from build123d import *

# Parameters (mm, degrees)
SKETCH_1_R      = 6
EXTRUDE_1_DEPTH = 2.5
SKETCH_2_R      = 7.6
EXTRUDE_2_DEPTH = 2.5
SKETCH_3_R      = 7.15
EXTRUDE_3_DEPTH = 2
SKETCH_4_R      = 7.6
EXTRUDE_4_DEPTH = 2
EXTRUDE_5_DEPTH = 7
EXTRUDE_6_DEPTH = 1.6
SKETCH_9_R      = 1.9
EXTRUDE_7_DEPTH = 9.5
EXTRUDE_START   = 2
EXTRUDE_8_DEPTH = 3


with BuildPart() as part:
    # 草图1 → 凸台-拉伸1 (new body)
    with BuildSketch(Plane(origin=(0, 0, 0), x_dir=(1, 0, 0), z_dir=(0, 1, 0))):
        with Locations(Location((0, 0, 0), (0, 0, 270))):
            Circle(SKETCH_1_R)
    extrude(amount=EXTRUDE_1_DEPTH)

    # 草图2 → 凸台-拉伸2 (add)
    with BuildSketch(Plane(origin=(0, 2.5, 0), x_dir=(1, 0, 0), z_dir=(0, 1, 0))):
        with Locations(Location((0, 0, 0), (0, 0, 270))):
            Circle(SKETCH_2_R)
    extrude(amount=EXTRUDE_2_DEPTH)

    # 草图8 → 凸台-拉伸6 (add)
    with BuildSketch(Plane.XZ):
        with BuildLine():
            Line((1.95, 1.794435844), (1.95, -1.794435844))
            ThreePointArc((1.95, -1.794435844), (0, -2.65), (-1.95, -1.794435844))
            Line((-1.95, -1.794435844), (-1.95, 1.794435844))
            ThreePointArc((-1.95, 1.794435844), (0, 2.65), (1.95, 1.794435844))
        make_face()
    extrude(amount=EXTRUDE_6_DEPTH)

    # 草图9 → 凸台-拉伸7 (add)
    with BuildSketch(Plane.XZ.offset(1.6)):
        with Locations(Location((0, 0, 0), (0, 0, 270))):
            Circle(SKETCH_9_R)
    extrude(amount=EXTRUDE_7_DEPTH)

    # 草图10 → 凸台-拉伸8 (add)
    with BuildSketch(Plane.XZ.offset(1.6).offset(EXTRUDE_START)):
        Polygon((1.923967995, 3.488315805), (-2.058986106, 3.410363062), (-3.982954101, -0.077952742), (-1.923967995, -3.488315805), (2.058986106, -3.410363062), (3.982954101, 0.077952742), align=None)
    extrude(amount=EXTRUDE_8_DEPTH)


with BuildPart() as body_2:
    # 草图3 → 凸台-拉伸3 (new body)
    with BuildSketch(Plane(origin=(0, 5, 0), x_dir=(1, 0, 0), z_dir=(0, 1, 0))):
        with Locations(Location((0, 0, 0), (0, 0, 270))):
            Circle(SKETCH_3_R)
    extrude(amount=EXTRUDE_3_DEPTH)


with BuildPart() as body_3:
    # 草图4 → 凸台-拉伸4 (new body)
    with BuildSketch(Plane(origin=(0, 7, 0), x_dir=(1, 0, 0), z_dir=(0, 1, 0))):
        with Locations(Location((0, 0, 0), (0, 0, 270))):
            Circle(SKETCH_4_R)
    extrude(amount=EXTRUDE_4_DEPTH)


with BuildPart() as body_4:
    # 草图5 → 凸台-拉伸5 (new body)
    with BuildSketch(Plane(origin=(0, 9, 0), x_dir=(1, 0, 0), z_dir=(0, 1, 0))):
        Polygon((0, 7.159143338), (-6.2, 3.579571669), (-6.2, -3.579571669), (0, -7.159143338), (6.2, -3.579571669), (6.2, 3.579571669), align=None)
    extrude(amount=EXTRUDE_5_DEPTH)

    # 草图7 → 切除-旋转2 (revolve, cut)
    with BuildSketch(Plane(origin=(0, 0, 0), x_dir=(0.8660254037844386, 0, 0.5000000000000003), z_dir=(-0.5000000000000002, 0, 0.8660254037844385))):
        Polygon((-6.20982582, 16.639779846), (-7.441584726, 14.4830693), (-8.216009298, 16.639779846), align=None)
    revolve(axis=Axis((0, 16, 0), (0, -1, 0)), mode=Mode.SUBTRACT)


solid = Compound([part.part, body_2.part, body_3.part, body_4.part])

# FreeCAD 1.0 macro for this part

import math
import FreeCAD as App
import Part
import Sketcher

V = App.Vector
Q = App.Units.Quantity

doc = App.newDocument("Part")
body = doc.addObject("PartDesign::Body", "Body")

# Sketch on XZ plane
sketch1 = body.newObject("Sketcher::SketchObject", "Sketch")
sketch1.AttachmentSupport = (doc.getObject("XZ_Plane"), [""])
sketch1.MapMode = "FlatFace"
sketch1.addGeometry(Part.Circle(V(0, 0, 0), V(0, 0, 1), 6), False)
sketch1.addConstraint([
    Sketcher.Constraint("Coincident", 0, 3, -1, 1),
    Sketcher.Constraint("Diameter", 0, Q("12 mm")),
])
pad1 = body.newObject("PartDesign::Pad", "Pad")
pad1.Profile = sketch1
pad1.Length = 2.5
pad1.Reversed = True

# Sketch on XZ plane
sketch2 = body.newObject("Sketcher::SketchObject", "Sketch001")
sketch2.AttachmentSupport = (doc.getObject("XZ_Plane"), [""])
sketch2.MapMode = "FlatFace"
sketch2.AttachmentOffset = App.Placement(V(0, 0, -2.5), App.Rotation())
sketch2.addGeometry(Part.Circle(V(0, 0, 0), V(0, 0, 1), 7.6), False)
sketch2.addConstraint([
    Sketcher.Constraint("Coincident", 0, 3, -1, 1),
    Sketcher.Constraint("Diameter", 0, Q("15.2 mm")),
])
pad2 = body.newObject("PartDesign::Pad", "Pad001")
pad2.Profile = sketch2
pad2.Length = 2.5
pad2.Reversed = True

# Sketch on XZ plane
sketch3 = body.newObject("Sketcher::SketchObject", "Sketch002")
sketch3.AttachmentSupport = (doc.getObject("XZ_Plane"), [""])
sketch3.MapMode = "FlatFace"
sketch3.addGeometry([
    Part.LineSegment(V(1.95, -1.794436, 0), V(1.95, 1.794436, 0)),
    Part.ArcOfCircle(Part.Circle(V(0, 0, 0), V(0, 0, 1), 2.65), math.radians(42.620991), math.radians(137.379009)),
    Part.LineSegment(V(-1.95, 1.794436, 0), V(-1.95, -1.794436, 0)),
    Part.ArcOfCircle(Part.Circle(V(0, 0, 0), V(0, 0, 1), 2.65), math.radians(-137.379009), math.radians(-42.620991)),
], False)
sketch3.addConstraint([
    Sketcher.Constraint("Coincident", 0, 2, 1, 1),
    Sketcher.Constraint("Coincident", 1, 2, 2, 1),
    Sketcher.Constraint("Coincident", 2, 2, 3, 1),
    Sketcher.Constraint("Coincident", 3, 2, 0, 1),
    Sketcher.Constraint("Vertical", 0),
    Sketcher.Constraint("Vertical", 2),
    Sketcher.Constraint("Coincident", 1, 3, -1, 1),
    Sketcher.Constraint("Coincident", 3, 3, -1, 1),
    Sketcher.Constraint("Equal", 1, 3),
    Sketcher.Constraint("Horizontal", 0, 2, 1, 2),
    Sketcher.Constraint("Radius", 1, Q("2.65 mm")),
    Sketcher.Constraint("DistanceX", 1, 2, 0, 2, Q("3.9 mm")),
])
pad3 = body.newObject("PartDesign::Pad", "Pad002")
pad3.Profile = sketch3
pad3.Length = 1.6

# Sketch on XZ plane
sketch4 = body.newObject("Sketcher::SketchObject", "Sketch003")
sketch4.AttachmentSupport = (doc.getObject("XZ_Plane"), [""])
sketch4.MapMode = "FlatFace"
sketch4.AttachmentOffset = App.Placement(V(0, 0, 1.6), App.Rotation())
sketch4.addGeometry(Part.Circle(V(0, 0, 0), V(0, 0, 1), 1.9), False)
sketch4.addConstraint([
    Sketcher.Constraint("Coincident", 0, 3, -1, 1),
    Sketcher.Constraint("Diameter", 0, Q("3.8 mm")),
])
pad4 = body.newObject("PartDesign::Pad", "Pad003")
pad4.Profile = sketch4
pad4.Length = 9.5

# Sketch on XZ plane
sketch5 = body.newObject("Sketcher::SketchObject", "Sketch004")
sketch5.AttachmentSupport = (doc.getObject("XZ_Plane"), [""])
sketch5.MapMode = "FlatFace"
sketch5.AttachmentOffset = App.Placement(V(0, 0, 3.6), App.Rotation())
sketch5.addGeometry([
    Part.LineSegment(V(1.923968, 3.488316, 0), V(-2.058986, 3.410363, 0)),  # 0
    Part.LineSegment(V(-2.058986, 3.410363, 0), V(-3.982954, -0.077953, 0)),  # 1
    Part.LineSegment(V(-3.982954, -0.077953, 0), V(-1.923968, -3.488316, 0)),  # 2
    Part.LineSegment(V(-1.923968, -3.488316, 0), V(2.058986, -3.410363, 0)),  # 3
    Part.LineSegment(V(2.058986, -3.410363, 0), V(3.982954, 0.077953, 0)),  # 4
    Part.LineSegment(V(3.982954, 0.077953, 0), V(1.923968, 3.488316, 0)),  # 5
], False)
sketch5.addConstraint([
    Sketcher.Constraint("Coincident", 0, 2, 1, 1),
    Sketcher.Constraint("Coincident", 1, 2, 2, 1),
    Sketcher.Constraint("Coincident", 2, 2, 3, 1),
    Sketcher.Constraint("Coincident", 3, 2, 4, 1),
    Sketcher.Constraint("Coincident", 4, 2, 5, 1),
    Sketcher.Constraint("Coincident", 5, 2, 0, 1),
    Sketcher.Constraint("Symmetric", 0, 2, 3, 2, -1, 1),
    Sketcher.Constraint("Symmetric", 1, 2, 4, 2, -1, 1),
    Sketcher.Constraint("Symmetric", 2, 2, 5, 2, -1, 1),
    Sketcher.Constraint("Equal", 0, 1),
    Sketcher.Constraint("Equal", 1, 2),
    Sketcher.Constraint("DistanceX", 0, 2, 2, 2, Q("0.135018 mm")),
    Sketcher.Constraint("DistanceY", 2, 2, 0, 2, Q("6.898679 mm")),
    Sketcher.Constraint("DistanceX", 1, 2, 3, 2, Q("6.04194 mm")),
    Sketcher.Constraint("DistanceY", 3, 2, 1, 2, Q("3.33241 mm")),
])
pad5 = body.newObject("PartDesign::Pad", "Pad004")
pad5.Profile = sketch5
pad5.Length = 3
body2 = doc.addObject("PartDesign::Body", "Body001")

# Sketch on XZ plane
sketch6 = body2.newObject("Sketcher::SketchObject", "Sketch005")
sketch6.AttachmentSupport = (doc.getObject("XZ_Plane001"), [""])
sketch6.MapMode = "FlatFace"
sketch6.AttachmentOffset = App.Placement(V(0, 0, -5), App.Rotation())
sketch6.addGeometry(Part.Circle(V(0, 0, 0), V(0, 0, 1), 7.15), False)
sketch6.addConstraint([
    Sketcher.Constraint("Coincident", 0, 3, -1, 1),
    Sketcher.Constraint("Diameter", 0, Q("14.3 mm")),
])
pad6 = body2.newObject("PartDesign::Pad", "Pad005")
pad6.Profile = sketch6
pad6.Length = 2
pad6.Reversed = True
body3 = doc.addObject("PartDesign::Body", "Body002")

# Sketch on XZ plane
sketch7 = body3.newObject("Sketcher::SketchObject", "Sketch006")
sketch7.AttachmentSupport = (doc.getObject("XZ_Plane002"), [""])
sketch7.MapMode = "FlatFace"
sketch7.AttachmentOffset = App.Placement(V(0, 0, -7), App.Rotation())
sketch7.addGeometry(Part.Circle(V(0, 0, 0), V(0, 0, 1), 7.6), False)
sketch7.addConstraint([
    Sketcher.Constraint("Coincident", 0, 3, -1, 1),
    Sketcher.Constraint("Diameter", 0, Q("15.2 mm")),
])
pad7 = body3.newObject("PartDesign::Pad", "Pad006")
pad7.Profile = sketch7
pad7.Length = 2
pad7.Reversed = True
body4 = doc.addObject("PartDesign::Body", "Body003")

# Sketch on XZ plane
sketch8 = body4.newObject("Sketcher::SketchObject", "Sketch007")
sketch8.AttachmentSupport = (doc.getObject("XZ_Plane003"), [""])
sketch8.MapMode = "FlatFace"
sketch8.AttachmentOffset = App.Placement(V(0, 0, -9), App.Rotation())
sketch8.addGeometry([
    Part.LineSegment(V(0, -7.159143, 0), V(-6.2, -3.579572, 0)),  # 0
    Part.LineSegment(V(-6.2, -3.579572, 0), V(-6.2, 3.579572, 0)),  # 1
    Part.LineSegment(V(-6.2, 3.579572, 0), V(0, 7.159143, 0)),  # 2
    Part.LineSegment(V(0, 7.159143, 0), V(6.2, 3.579572, 0)),  # 3
    Part.LineSegment(V(6.2, 3.579572, 0), V(6.2, -3.579572, 0)),  # 4
    Part.LineSegment(V(6.2, -3.579572, 0), V(0, -7.159143, 0)),  # 5
], False)
sketch8.addConstraint([
    Sketcher.Constraint("Coincident", 0, 2, 1, 1),
    Sketcher.Constraint("Coincident", 1, 2, 2, 1),
    Sketcher.Constraint("Coincident", 2, 2, 3, 1),
    Sketcher.Constraint("Coincident", 3, 2, 4, 1),
    Sketcher.Constraint("Coincident", 4, 2, 5, 1),
    Sketcher.Constraint("Coincident", 5, 2, 0, 1),
    Sketcher.Constraint("Vertical", 1),
    Sketcher.Constraint("Vertical", 4),
    Sketcher.Constraint("Symmetric", 0, 2, 3, 2, -1, 1),
    Sketcher.Constraint("Symmetric", 2, 2, 5, 2, -1, 1),
    Sketcher.Constraint("PointOnObject", 2, 2, -2),
    Sketcher.Constraint("Parallel", 2, 5),
    Sketcher.Constraint("Horizontal", 1, 2, 3, 2),
    Sketcher.Constraint("Angle", 0, Q("150 deg")),
    Sketcher.Constraint("DistanceX", 0, 2, -1, 1, Q("6.2 mm")),
    Sketcher.Constraint("DistanceY", 1, 1, 1, 2, Q("7.159143 mm")),
])
pad8 = body4.newObject("PartDesign::Pad", "Pad007")
pad8.Profile = sketch8
pad8.Length = 7
pad8.Reversed = True

# Sketch on an angled plane
sketch9 = body4.newObject("Sketcher::SketchObject", "Sketch008")
sketch9.Placement = App.Placement(V(0, 0, 0), App.Rotation(V(0.866025404, 0, 0.5), V(0, 1, 0), V(-0.5, 0, 0.866025404), "ZXY"))
sketch9.addGeometry([
    Part.LineSegment(V(-7.441585, 14.483069, 0), V(-6.209826, 16.63978, 0)),
    Part.LineSegment(V(-6.209826, 16.63978, 0), V(-8.216009, 16.63978, 0)),
    Part.LineSegment(V(-8.216009, 16.63978, 0), V(-7.441585, 14.483069, 0)),
], False)
sketch9.addConstraint([
    Sketcher.Constraint("Coincident", 0, 2, 1, 1),
    Sketcher.Constraint("Coincident", 1, 2, 2, 1),
    Sketcher.Constraint("Coincident", 2, 2, 0, 1),
    Sketcher.Constraint("Horizontal", 1),
    Sketcher.Constraint("DistanceX", 1, 2, 1, 1, Q("2.006183 mm")),
    Sketcher.Constraint("DistanceY", -1, 1, 0, 2, Q("16.63978 mm")),
    Sketcher.Constraint("DistanceX", 1, 2, -1, 1, Q("8.216009 mm")),
    Sketcher.Constraint("DistanceY", -1, 1, 2, 2, Q("14.483069 mm")),
    Sketcher.Constraint("DistanceX", 2, 2, 0, 2, Q("1.231759 mm")),
])
groove = body4.newObject("PartDesign::Groove", "Groove")
groove.Profile = sketch9
groove.ReferenceAxis = (sketch9, ["V_Axis"])
groove.Angle = 360

doc.recompute()
